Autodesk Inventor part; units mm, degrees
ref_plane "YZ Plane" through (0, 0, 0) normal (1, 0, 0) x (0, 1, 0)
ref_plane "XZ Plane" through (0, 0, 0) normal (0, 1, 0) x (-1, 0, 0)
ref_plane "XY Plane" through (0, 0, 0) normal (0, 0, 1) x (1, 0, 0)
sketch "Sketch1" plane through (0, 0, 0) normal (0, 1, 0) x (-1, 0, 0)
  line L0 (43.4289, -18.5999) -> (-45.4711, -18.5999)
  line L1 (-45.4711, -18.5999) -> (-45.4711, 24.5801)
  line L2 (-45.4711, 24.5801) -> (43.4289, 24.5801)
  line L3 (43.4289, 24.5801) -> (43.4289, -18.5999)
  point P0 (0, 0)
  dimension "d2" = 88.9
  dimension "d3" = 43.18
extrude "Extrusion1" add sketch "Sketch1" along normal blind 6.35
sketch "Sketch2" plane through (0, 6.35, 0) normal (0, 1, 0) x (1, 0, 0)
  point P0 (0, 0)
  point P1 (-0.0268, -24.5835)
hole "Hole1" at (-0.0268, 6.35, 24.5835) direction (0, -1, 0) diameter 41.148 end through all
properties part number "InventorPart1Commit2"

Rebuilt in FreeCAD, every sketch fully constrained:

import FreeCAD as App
import Part
import Sketcher
from FreeCAD import Vector
Q = App.Units.Quantity

doc = App.newDocument("Part")
params = doc.addObject("Spreadsheet::Sheet", "Params")
for row, (alias, value) in enumerate([
    ("sketch1_width", "3.5 in"),
    ("sketch1_height", "1.7 in"),
    ("pad1_length", "0.25 in"),
    ("sketch2_diameter", "1.62 in"),
    ("hole_diameter", "1.62 in"),
], start=1):
    params.set(f"A{row}", alias)
    params.set(f"B{row}", "=" + value)
    params.setAlias(f"B{row}", alias)

body = doc.addObject("PartDesign::Body", "Body")

# Sketch on XZ plane
sketch1 = body.newObject("Sketcher::SketchObject", "Sketch")
sketch1.AttachmentSupport = (doc.getObject("XZ_Plane"), [""])
sketch1.MapMode = "FlatFace"
sketch1.addGeometry([
    Part.LineSegment(Vector(45, -19, 0), Vector(-43, -19, 0)),
    Part.LineSegment(Vector(-43, -19, 0), Vector(-43, 25, 0)),
    Part.LineSegment(Vector(-43, 25, 0), Vector(45, 25, 0)),
    Part.LineSegment(Vector(45, 25, 0), Vector(45, -19, 0)),
], False)
sketch1.addConstraint([
    Sketcher.Constraint("Coincident", 0, 2, 1, 1),
    Sketcher.Constraint("Coincident", 1, 2, 2, 1),
    Sketcher.Constraint("Coincident", 2, 2, 3, 1),
    Sketcher.Constraint("Coincident", 3, 2, 0, 1),
    Sketcher.Constraint("Horizontal", 0),
    Sketcher.Constraint("Vertical", 1),
    Sketcher.Constraint("Horizontal", 2),
    Sketcher.Constraint("Vertical", 3),
    Sketcher.Constraint("DistanceX", 0, 2, 0, 1, Q("3.5 in")),
    Sketcher.Constraint("DistanceY", 1, 1, 1, 2, Q("1.7 in")),
    Sketcher.Constraint("DistanceX", 0, 2, -1, 1, Q("1.7098 in")),
    Sketcher.Constraint("DistanceY", 0, 2, -1, 1, 18.6),
])
sketch1.setExpression("Constraints[8]", "Params.sketch1_width")
sketch1.setExpression("Constraints[9]", "Params.sketch1_height")
pad1 = body.newObject("PartDesign::Pad", "Pad")
pad1.Profile = sketch1
pad1.setExpression("Length", "Params.pad1_length")
pad1.Reversed = True

# Sketch on XZ plane
sketch2 = body.newObject("Sketcher::SketchObject", "Sketch001")
sketch2.AttachmentSupport = (doc.getObject("XZ_Plane"), [""])
sketch2.MapMode = "FlatFace"
sketch2.AttachmentOffset = App.Placement(Vector(0, 0, -0.25 * 25.4), App.Rotation())
sketch2.addGeometry(Part.Circle(Vector(0, 25, 0), Vector(0, 0, 1), 21), False)
sketch2.addConstraint([
    Sketcher.Constraint("Diameter", 0, Q("1.62 in")),
    Sketcher.Constraint("DistanceX", 0, 3, -1, 1, 0.0268),
    Sketcher.Constraint("DistanceY", -1, 1, 0, 3, 24.5835),
])
sketch2.setExpression("Constraints[0]", "Params.sketch2_diameter")
doc.recompute()
hole = body.newObject("PartDesign::Hole", "Hole")
hole.Profile = sketch2
hole.ThreadType = "None"
hole.setExpression("Diameter", "Params.hole_diameter")
hole.DepthType = "ThroughAll"
hole.Reversed = True

doc.recompute()
